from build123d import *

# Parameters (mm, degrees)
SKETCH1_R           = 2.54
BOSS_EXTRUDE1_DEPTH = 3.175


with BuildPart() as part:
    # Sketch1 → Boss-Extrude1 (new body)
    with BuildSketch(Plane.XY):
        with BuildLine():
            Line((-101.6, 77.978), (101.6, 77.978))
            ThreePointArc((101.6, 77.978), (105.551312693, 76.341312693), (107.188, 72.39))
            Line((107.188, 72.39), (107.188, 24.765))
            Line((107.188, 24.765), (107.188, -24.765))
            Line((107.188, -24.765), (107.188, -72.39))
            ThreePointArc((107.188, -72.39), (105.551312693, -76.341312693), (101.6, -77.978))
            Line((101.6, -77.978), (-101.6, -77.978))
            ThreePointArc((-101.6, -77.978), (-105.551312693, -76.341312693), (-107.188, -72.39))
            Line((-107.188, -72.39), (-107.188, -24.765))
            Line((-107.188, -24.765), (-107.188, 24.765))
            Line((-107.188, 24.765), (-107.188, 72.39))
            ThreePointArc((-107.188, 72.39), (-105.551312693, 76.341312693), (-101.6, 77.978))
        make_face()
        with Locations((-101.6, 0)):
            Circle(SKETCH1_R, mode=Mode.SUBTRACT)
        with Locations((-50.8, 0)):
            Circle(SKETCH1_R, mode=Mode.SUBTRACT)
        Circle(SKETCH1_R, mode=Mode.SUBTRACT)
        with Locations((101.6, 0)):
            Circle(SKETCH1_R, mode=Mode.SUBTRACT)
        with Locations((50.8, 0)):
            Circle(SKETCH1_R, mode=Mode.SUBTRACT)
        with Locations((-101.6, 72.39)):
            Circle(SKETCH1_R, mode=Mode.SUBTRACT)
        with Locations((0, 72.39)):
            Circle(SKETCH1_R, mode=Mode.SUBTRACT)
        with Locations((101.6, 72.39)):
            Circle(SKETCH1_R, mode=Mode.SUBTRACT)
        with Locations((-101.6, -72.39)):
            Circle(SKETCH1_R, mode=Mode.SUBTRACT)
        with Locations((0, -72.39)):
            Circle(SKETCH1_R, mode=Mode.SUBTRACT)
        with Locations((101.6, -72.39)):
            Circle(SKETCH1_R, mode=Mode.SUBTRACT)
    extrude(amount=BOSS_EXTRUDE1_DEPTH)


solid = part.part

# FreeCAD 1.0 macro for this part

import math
import FreeCAD as App
import Part
import Sketcher
Q = App.Units.Quantity

doc = App.newDocument("Part")
params = doc.addObject("Spreadsheet::Sheet", "Params")
for row, (alias, value) in enumerate([
    ("sketch1_diameter", "0.2 in"),
    ("sketch1_width", "8 in"),
    ("sketch1_radius", "0.22 in"),
    ("sketch1_height", "5.7 in"),
    ("pad1_length", "0.125 in"),
], start=1):
    params.set(f"A{row}", alias)
    params.set(f"B{row}", "=" + value)
    params.setAlias(f"B{row}", alias)

body = doc.addObject("PartDesign::Body", "Body")

sketch1 = doc.addObject("Sketcher::SketchObject", "Sketch")
body.addObject(sketch1)
sketch1.AttachmentSupport = (doc.XY_Plane, [""])
sketch1.MapMode = "FlatFace"
sketch1.addGeometry(Part.LineSegment(App.Vector(101.6, 78, 0), App.Vector(-101.6, 78, 0)), False)
sketch1.addGeometry(Part.ArcOfCircle(Part.Circle(App.Vector(-101.6, 72.4, 0), App.Vector(0, 0, 1), 5.6), math.radians(90), math.radians(180)), False)
sketch1.addGeometry(Part.LineSegment(App.Vector(-107.2, 72.4, 0), App.Vector(-107.2, -72.4, 0)), False)
sketch1.addGeometry(Part.ArcOfCircle(Part.Circle(App.Vector(-101.6, -72.4, 0), App.Vector(0, 0, 1), 5.6), math.radians(-180), math.radians(-90)), False)
sketch1.addGeometry(Part.LineSegment(App.Vector(-101.6, -78, 0), App.Vector(101.6, -78, 0)), False)
sketch1.addGeometry(Part.ArcOfCircle(Part.Circle(App.Vector(101.6, -72.4, 0), App.Vector(0, 0, 1), 5.6), math.radians(-90), math.radians(0)), False)
sketch1.addGeometry(Part.LineSegment(App.Vector(107.2, -72.4, 0), App.Vector(107.2, 72.4, 0)), False)
sketch1.addGeometry(Part.ArcOfCircle(Part.Circle(App.Vector(101.6, 72.4, 0), App.Vector(0, 0, 1), 5.6), math.radians(0), math.radians(90)), False)
sketch1.addGeometry(Part.Circle(App.Vector(101.6, -72.4, 0), App.Vector(0, 0, 1), 2.5), False)
sketch1.addGeometry(Part.Circle(App.Vector(0, -72.4, 0), App.Vector(0, 0, 1), 2.5), False)
sketch1.addGeometry(Part.Circle(App.Vector(-101.6, -72.4, 0), App.Vector(0, 0, 1), 2.5), False)
sketch1.addGeometry(Part.Circle(App.Vector(101.6, 0, 0), App.Vector(0, 0, 1), 2.5), False)
sketch1.addGeometry(Part.Circle(App.Vector(50.8, 0, 0), App.Vector(0, 0, 1), 2.5), False)
sketch1.addGeometry(Part.Circle(App.Vector(101.6, 72.4, 0), App.Vector(0, 0, 1), 2.5), False)
sketch1.addGeometry(Part.Circle(App.Vector(0, 0, 0), App.Vector(0, 0, 1), 2.5), False)
sketch1.addGeometry(Part.Circle(App.Vector(-50.8, 0, 0), App.Vector(0, 0, 1), 2.5), False)
sketch1.addGeometry(Part.Circle(App.Vector(-101.6, 0, 0), App.Vector(0, 0, 1), 2.5), False)
sketch1.addGeometry(Part.Circle(App.Vector(0, 72.4, 0), App.Vector(0, 0, 1), 2.5), False)
sketch1.addGeometry(Part.Circle(App.Vector(-101.6, 72.4, 0), App.Vector(0, 0, 1), 2.5), False)
sketch1.addConstraint(Sketcher.Constraint("Tangent", 0, 2, 1, 1))
sketch1.addConstraint(Sketcher.Constraint("Tangent", 1, 2, 2, 1))
sketch1.addConstraint(Sketcher.Constraint("Tangent", 2, 2, 3, 1))
sketch1.addConstraint(Sketcher.Constraint("Tangent", 3, 2, 4, 1))
sketch1.addConstraint(Sketcher.Constraint("Tangent", 4, 2, 5, 1))
sketch1.addConstraint(Sketcher.Constraint("Tangent", 5, 2, 6, 1))
sketch1.addConstraint(Sketcher.Constraint("Tangent", 6, 2, 7, 1))
sketch1.addConstraint(Sketcher.Constraint("Tangent", 7, 2, 0, 1))
sketch1.addConstraint(Sketcher.Constraint("Horizontal", 0))
sketch1.addConstraint(Sketcher.Constraint("Vertical", 2))
sketch1.addConstraint(Sketcher.Constraint("Horizontal", 4))
sketch1.addConstraint(Sketcher.Constraint("Vertical", 6))
sketch1.addConstraint(Sketcher.Constraint("Coincident", 14, 3, -1, 1))
sketch1.addConstraint(Sketcher.Constraint("Coincident", 8, 3, 5, 3))
sketch1.addConstraint(Sketcher.Constraint("Coincident", 10, 3, 3, 3))
sketch1.addConstraint(Sketcher.Constraint("Coincident", 13, 3, 7, 3))
sketch1.addConstraint(Sketcher.Constraint("Coincident", 18, 3, 1, 3))
sketch1.addConstraint(Sketcher.Constraint("Equal", 1, 3))
sketch1.addConstraint(Sketcher.Constraint("Equal", 3, 5))
sketch1.addConstraint(Sketcher.Constraint("Equal", 5, 7))
sketch1.addConstraint(Sketcher.Constraint("Equal", 8, 9))
sketch1.addConstraint(Sketcher.Constraint("Equal", 9, 10))
sketch1.addConstraint(Sketcher.Constraint("Equal", 10, 11))
sketch1.addConstraint(Sketcher.Constraint("Equal", 11, 12))
sketch1.addConstraint(Sketcher.Constraint("Equal", 12, 13))
sketch1.addConstraint(Sketcher.Constraint("Equal", 13, 14))
sketch1.addConstraint(Sketcher.Constraint("Equal", 14, 15))
sketch1.addConstraint(Sketcher.Constraint("Equal", 15, 16))
sketch1.addConstraint(Sketcher.Constraint("Equal", 16, 17))
sketch1.addConstraint(Sketcher.Constraint("Equal", 17, 18))
sketch1.addConstraint(Sketcher.Constraint("Symmetric", 1, 3, 5, 3, -1, 1))
sketch1.addConstraint(Sketcher.Constraint("Symmetric", 12, 3, 15, 3, -1, 1))
sketch1.addConstraint(Sketcher.Constraint("Symmetric", 11, 3, 16, 3, -1, 1))
sketch1.addConstraint(Sketcher.Constraint("Symmetric", 9, 3, 17, 3, -1, 1))
sketch1.addConstraint(Sketcher.Constraint("PointOnObject", 9, 3, -2))
sketch1.addConstraint(Sketcher.Constraint("PointOnObject", 11, 3, -1))
sketch1.addConstraint(Sketcher.Constraint("PointOnObject", 12, 3, -1))
sketch1.addConstraint(Sketcher.Constraint("Horizontal", 8, 3, 9, 3))
sketch1.addConstraint(Sketcher.Constraint("Vertical", 8, 3, 11, 3))
sketch1.addConstraint(Sketcher.Constraint("Diameter", 8, Q("0.2 in")))
sketch1.addConstraint(Sketcher.Constraint("DistanceX", 0, 2, 0, 1, Q("8 in")))
sketch1.addConstraint(Sketcher.Constraint("Radius", 1, Q("0.22 in")))
sketch1.addConstraint(Sketcher.Constraint("DistanceY", 2, 2, 2, 1, Q("5.7 in")))
sketch1.addConstraint(Sketcher.Constraint("DistanceX", -1, 1, 12, 3, Q("2 in")))
sketch1.setExpression("Constraints[39]", "Params.sketch1_diameter")
sketch1.setExpression("Constraints[40]", "Params.sketch1_width")
sketch1.setExpression("Constraints[41]", "Params.sketch1_radius")
sketch1.setExpression("Constraints[42]", "Params.sketch1_height")
pad1 = doc.addObject("PartDesign::Pad", "Pad")
body.addObject(pad1)
pad1.Profile = sketch1
pad1.setExpression("Length", "Params.pad1_length")

doc.recompute()
